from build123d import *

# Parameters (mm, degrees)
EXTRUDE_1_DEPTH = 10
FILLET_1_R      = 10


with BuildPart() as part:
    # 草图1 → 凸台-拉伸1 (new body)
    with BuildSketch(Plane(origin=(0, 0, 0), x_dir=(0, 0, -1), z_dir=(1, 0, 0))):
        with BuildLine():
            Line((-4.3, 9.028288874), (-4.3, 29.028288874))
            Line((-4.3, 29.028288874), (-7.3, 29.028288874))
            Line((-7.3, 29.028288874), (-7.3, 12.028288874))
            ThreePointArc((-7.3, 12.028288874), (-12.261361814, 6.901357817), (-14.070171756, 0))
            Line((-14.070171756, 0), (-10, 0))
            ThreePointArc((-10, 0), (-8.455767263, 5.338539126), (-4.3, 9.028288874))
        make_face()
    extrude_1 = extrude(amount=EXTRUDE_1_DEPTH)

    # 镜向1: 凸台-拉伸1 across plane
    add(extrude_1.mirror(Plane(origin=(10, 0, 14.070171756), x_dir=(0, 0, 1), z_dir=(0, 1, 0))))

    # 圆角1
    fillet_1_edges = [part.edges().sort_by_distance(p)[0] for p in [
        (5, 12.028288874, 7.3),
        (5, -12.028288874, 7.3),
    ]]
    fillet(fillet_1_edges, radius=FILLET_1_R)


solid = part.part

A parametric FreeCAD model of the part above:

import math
import FreeCAD as App
import Part
import Sketcher


def edges_at(feature, points):
    """Names of the edges that pass closest to the given points."""
    edges = feature.Shape.Edges
    near = lambda p: min(range(len(edges)), key=lambda i: edges[i].distToShape(Part.Vertex(*p))[0])
    return sorted({f"Edge{near(p) + 1}" for p in points})

doc = App.newDocument("Part")
body = doc.addObject("PartDesign::Body", "Body")

# Sketch on YZ plane
sketch1 = body.newObject("Sketcher::SketchObject", "Sketch")
sketch1.AttachmentSupport = (doc.getObject("YZ_Plane"), [""])
sketch1.MapMode = "FlatFace"
sketch1.addGeometry([
    Part.LineSegment(App.Vector(9, 4.3, 0), App.Vector(29, 4.3, 0)),  # 0
    Part.LineSegment(App.Vector(29, 4.3, 0), App.Vector(29, 7.3, 0)),  # 1
    Part.LineSegment(App.Vector(29, 7.3, 0), App.Vector(12, 7.3, 0)),  # 2
    Part.ArcOfCircle(Part.Circle(App.Vector(0, 0, 0), App.Vector(0, 0, 1), 14.1), math.radians(31), math.radians(90)),  # 3
    Part.LineSegment(App.Vector(0, 14.1, 0), App.Vector(0, 10, 0)),  # 4
    Part.ArcOfCircle(Part.Circle(App.Vector(0, 0, 0), App.Vector(0, 0, 1), 10), math.radians(25), math.radians(90)),  # 5
], False)
sketch1.addConstraint([
    Sketcher.Constraint("Coincident", 0, 2, 1, 1),
    Sketcher.Constraint("Coincident", 1, 2, 2, 1),
    Sketcher.Constraint("Coincident", 2, 2, 3, 1),
    Sketcher.Constraint("Coincident", 3, 2, 4, 1),
    Sketcher.Constraint("Coincident", 4, 2, 5, 2),
    Sketcher.Constraint("Coincident", 5, 1, 0, 1),
    Sketcher.Constraint("Horizontal", 0),
    Sketcher.Constraint("Vertical", 1),
    Sketcher.Constraint("Horizontal", 2),
    Sketcher.Constraint("Vertical", 4),
    Sketcher.Constraint("Coincident", 3, 3, -1, 1),
    Sketcher.Constraint("Coincident", 5, 3, -1, 1),
    Sketcher.Constraint("PointOnObject", 3, 2, -2),
    Sketcher.Constraint("Radius", 5, 10.0),
    Sketcher.Constraint("DistanceX", 0, 1, 0, 2, 20.0),
    Sketcher.Constraint("DistanceX", 2, 2, 2, 1, 17.0),
    Sketcher.Constraint("DistanceY", 1, 1, 1, 2, 3.0),
    Sketcher.Constraint("DistanceY", -1, 1, 0, 2, 4.3),
])
pad1 = body.newObject("PartDesign::Pad", "Pad")
pad1.Profile = sketch1
pad1.Length = 10
doc.recompute()

mirrored = body.newObject("PartDesign::Mirrored", "Mirrored")
mirrored.Originals = [pad1]
mirrored.MirrorPlane = (doc.getObject("XZ_Plane"), [""])
body.Tip = mirrored
doc.recompute()

fillet = body.newObject("PartDesign::Fillet", "Fillet")
fillet.Base = (mirrored, edges_at(mirrored, [(5, 12.028, 7.3), (5, -12.028, 7.3)]))
fillet.Radius = 10

doc.recompute()
